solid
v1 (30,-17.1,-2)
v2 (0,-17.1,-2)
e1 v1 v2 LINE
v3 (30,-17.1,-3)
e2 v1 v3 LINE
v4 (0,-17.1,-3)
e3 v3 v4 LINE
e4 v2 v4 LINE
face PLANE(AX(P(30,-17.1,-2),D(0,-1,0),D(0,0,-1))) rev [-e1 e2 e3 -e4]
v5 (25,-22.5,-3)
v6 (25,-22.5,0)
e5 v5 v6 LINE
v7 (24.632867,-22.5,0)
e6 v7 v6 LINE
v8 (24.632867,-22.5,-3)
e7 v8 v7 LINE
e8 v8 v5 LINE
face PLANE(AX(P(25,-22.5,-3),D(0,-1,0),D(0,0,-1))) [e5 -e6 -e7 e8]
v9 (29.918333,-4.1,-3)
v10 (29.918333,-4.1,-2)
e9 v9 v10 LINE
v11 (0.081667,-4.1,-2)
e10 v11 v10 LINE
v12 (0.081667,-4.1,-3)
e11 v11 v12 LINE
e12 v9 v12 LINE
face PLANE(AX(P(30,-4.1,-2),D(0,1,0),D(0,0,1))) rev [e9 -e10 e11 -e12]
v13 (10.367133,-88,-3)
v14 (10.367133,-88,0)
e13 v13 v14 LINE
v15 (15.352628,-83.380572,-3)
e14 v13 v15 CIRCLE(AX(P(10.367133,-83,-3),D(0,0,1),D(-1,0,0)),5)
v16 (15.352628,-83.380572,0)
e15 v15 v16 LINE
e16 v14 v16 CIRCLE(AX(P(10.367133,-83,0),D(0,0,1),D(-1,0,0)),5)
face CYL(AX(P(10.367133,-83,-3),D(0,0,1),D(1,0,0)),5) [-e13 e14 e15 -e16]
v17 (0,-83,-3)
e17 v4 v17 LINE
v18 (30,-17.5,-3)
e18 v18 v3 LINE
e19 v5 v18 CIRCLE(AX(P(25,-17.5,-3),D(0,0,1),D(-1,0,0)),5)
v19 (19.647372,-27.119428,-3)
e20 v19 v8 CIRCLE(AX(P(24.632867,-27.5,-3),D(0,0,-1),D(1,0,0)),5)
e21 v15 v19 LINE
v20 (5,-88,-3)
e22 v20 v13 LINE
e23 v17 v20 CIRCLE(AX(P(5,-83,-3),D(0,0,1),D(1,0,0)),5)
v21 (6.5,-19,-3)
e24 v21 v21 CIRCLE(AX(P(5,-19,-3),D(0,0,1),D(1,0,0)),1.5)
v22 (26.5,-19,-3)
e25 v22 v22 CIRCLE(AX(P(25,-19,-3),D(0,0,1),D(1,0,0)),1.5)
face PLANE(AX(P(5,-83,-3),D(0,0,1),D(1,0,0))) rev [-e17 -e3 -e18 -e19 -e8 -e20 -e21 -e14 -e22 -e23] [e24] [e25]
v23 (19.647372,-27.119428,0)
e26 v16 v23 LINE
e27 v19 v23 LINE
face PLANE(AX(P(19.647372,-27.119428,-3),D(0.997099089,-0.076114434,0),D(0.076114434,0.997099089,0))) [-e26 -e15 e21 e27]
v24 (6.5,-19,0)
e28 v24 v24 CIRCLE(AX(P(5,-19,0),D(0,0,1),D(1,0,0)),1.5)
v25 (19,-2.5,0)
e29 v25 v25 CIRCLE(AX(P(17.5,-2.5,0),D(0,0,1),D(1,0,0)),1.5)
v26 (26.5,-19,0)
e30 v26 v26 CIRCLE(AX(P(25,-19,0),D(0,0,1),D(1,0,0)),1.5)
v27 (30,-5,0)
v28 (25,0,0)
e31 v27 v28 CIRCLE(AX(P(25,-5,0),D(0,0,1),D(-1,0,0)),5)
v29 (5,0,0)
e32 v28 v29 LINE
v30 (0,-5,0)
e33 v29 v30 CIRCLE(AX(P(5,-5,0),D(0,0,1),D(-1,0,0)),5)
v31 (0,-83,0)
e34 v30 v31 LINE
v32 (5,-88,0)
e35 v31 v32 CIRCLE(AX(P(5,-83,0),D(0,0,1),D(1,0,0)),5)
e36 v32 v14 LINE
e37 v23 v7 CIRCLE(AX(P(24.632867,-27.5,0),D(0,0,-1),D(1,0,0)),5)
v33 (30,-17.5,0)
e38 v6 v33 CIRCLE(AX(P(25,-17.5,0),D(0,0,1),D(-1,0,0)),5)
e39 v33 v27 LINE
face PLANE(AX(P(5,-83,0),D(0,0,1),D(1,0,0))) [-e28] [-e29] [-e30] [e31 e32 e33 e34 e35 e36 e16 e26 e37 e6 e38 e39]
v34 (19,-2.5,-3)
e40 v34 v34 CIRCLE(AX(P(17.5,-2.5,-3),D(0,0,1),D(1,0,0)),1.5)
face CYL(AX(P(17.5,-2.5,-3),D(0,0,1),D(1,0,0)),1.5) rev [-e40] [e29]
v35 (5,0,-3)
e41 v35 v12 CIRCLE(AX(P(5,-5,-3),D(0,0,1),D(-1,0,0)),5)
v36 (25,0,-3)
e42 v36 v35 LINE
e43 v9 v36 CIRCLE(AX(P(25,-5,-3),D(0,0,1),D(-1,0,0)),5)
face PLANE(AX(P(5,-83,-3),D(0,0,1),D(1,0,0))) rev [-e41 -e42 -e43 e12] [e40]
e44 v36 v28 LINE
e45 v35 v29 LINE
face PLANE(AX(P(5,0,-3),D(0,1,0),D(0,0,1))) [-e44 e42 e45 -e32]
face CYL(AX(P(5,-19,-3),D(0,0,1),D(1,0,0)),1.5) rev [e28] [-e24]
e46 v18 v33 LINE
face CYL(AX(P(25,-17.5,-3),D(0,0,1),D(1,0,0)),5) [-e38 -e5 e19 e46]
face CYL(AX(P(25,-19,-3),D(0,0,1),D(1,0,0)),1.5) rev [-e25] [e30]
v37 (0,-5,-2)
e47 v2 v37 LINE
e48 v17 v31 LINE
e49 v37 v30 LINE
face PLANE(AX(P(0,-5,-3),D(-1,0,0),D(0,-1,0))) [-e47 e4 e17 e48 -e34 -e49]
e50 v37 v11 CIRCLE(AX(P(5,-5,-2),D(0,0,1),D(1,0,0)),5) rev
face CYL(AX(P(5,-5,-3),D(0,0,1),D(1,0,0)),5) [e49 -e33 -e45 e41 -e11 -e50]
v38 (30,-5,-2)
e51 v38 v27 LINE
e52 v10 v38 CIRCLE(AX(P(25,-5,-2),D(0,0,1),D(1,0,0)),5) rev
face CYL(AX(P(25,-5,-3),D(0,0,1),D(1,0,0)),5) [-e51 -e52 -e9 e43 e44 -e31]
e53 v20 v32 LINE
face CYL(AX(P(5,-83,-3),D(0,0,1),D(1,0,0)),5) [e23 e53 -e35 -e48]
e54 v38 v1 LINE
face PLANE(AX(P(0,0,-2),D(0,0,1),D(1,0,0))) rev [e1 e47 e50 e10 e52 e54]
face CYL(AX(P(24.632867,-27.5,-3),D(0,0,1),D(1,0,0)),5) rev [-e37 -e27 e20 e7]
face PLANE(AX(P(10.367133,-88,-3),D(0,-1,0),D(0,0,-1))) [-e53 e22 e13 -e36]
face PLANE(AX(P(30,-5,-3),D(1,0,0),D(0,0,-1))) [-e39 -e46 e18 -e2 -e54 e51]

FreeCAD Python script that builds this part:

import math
import FreeCAD as App
import Part
import Sketcher
Q = App.Units.Quantity


def add_polygon(sketch, points):
    """Adds a closed chain of lines whose ends are joined by coincident constraints."""
    first, n = sketch.GeometryCount, len(points)
    for a, b in zip(points, points[1:] + points[:1]):
        sketch.addGeometry(Part.LineSegment(App.Vector(*a, 0), App.Vector(*b, 0)), False)
    for i in range(n):
        sketch.addConstraint(Sketcher.Constraint("Coincident", first + i, 2, first + (i + 1) % n, 1))

doc = App.newDocument("Part")
params = doc.addObject("Spreadsheet::Sheet", "Params")
for row, (alias, value) in enumerate([
    ("sketch1_diameter", "3 mm"),
    ("sketch1_radius", "5 mm"),
    ("sketch1_width", "20 mm"),
    ("sketch1_height", "78 mm"),
    ("sketch1_height2", "12.5 mm"),
    ("pad1_length", "3 mm"),
    ("sketch2_width", "30 mm"),
    ("sketch2_height", "13 mm"),
    ("pocket1_length", "1 mm"),
], start=1):
    params.set(f"A{row}", alias)
    params.set(f"B{row}", "=" + value)
    params.setAlias(f"B{row}", alias)

body = doc.addObject("PartDesign::Body", "Body")

# Sketch on XY plane
sketch1 = body.newObject("Sketcher::SketchObject", "Sketch")
sketch1.AttachmentSupport = (doc.getObject("XY_Plane"), [""])
sketch1.MapMode = "FlatFace"
sketch1.addGeometry(Part.LineSegment(App.Vector(0, -5, 0), App.Vector(0, -83, 0)), False)
sketch1.addGeometry(Part.ArcOfCircle(Part.Circle(App.Vector(5, -83, 0), App.Vector(0, 0, 1), 5), math.radians(180), math.radians(270)), False)
sketch1.addGeometry(Part.LineSegment(App.Vector(5, -88, 0), App.Vector(10.37, -88, 0)), False)
sketch1.addGeometry(Part.ArcOfCircle(Part.Circle(App.Vector(10.37, -83, 0), App.Vector(0, 0, 1), 5), math.radians(-90), math.radians(-4)), False)
sketch1.addGeometry(Part.LineSegment(App.Vector(15.35, -83.38, 0), App.Vector(19.65, -27.12, 0)), False)
sketch1.addGeometry(Part.ArcOfCircle(Part.Circle(App.Vector(24.63, -27.5, 0), App.Vector(0, 0, 1), 5), math.radians(90), math.radians(176)), False)
sketch1.addGeometry(Part.LineSegment(App.Vector(24.63, -22.5, 0), App.Vector(25, -22.5, 0)), False)
sketch1.addGeometry(Part.ArcOfCircle(Part.Circle(App.Vector(25, -17.5, 0), App.Vector(0, 0, 1), 5), math.radians(-90), math.radians(0)), False)
sketch1.addGeometry(Part.LineSegment(App.Vector(30, -17.5, 0), App.Vector(30, -5, 0)), False)
sketch1.addGeometry(Part.ArcOfCircle(Part.Circle(App.Vector(25, -5, 0), App.Vector(0, 0, 1), 5), math.radians(0), math.radians(90)), False)
sketch1.addGeometry(Part.LineSegment(App.Vector(25, 0, 0), App.Vector(5, 0, 0)), False)
sketch1.addGeometry(Part.ArcOfCircle(Part.Circle(App.Vector(5, -5, 0), App.Vector(0, 0, 1), 5), math.radians(90), math.radians(180)), False)
sketch1.addGeometry(Part.Circle(App.Vector(5, -19, 0), App.Vector(0, 0, 1), 1.5), False)
sketch1.addGeometry(Part.Circle(App.Vector(25, -19, 0), App.Vector(0, 0, 1), 1.5), False)
sketch1.addGeometry(Part.Circle(App.Vector(17.5, -2.5, 0), App.Vector(0, 0, 1), 1.5), False)
sketch1.addConstraint(Sketcher.Constraint("Tangent", 0, 2, 1, 1))
sketch1.addConstraint(Sketcher.Constraint("Tangent", 1, 2, 2, 1))
sketch1.addConstraint(Sketcher.Constraint("Tangent", 2, 2, 3, 1))
sketch1.addConstraint(Sketcher.Constraint("Tangent", 3, 2, 4, 1))
sketch1.addConstraint(Sketcher.Constraint("Tangent", 4, 2, 5, 2))
sketch1.addConstraint(Sketcher.Constraint("Tangent", 5, 1, 6, 1))
sketch1.addConstraint(Sketcher.Constraint("Tangent", 6, 2, 7, 1))
sketch1.addConstraint(Sketcher.Constraint("Tangent", 7, 2, 8, 1))
sketch1.addConstraint(Sketcher.Constraint("Tangent", 8, 2, 9, 1))
sketch1.addConstraint(Sketcher.Constraint("Tangent", 9, 2, 10, 1))
sketch1.addConstraint(Sketcher.Constraint("Tangent", 10, 2, 11, 1))
sketch1.addConstraint(Sketcher.Constraint("Tangent", 11, 2, 0, 1))
sketch1.addConstraint(Sketcher.Constraint("Vertical", 0))
sketch1.addConstraint(Sketcher.Constraint("Horizontal", 2))
sketch1.addConstraint(Sketcher.Constraint("Horizontal", 6))
sketch1.addConstraint(Sketcher.Constraint("Vertical", 8))
sketch1.addConstraint(Sketcher.Constraint("Horizontal", 10))
sketch1.addConstraint(Sketcher.Constraint("Equal", 1, 3))
sketch1.addConstraint(Sketcher.Constraint("Equal", 3, 5))
sketch1.addConstraint(Sketcher.Constraint("Equal", 5, 7))
sketch1.addConstraint(Sketcher.Constraint("Equal", 7, 9))
sketch1.addConstraint(Sketcher.Constraint("Equal", 9, 11))
sketch1.addConstraint(Sketcher.Constraint("Equal", 12, 13))
sketch1.addConstraint(Sketcher.Constraint("Equal", 13, 14))
sketch1.addConstraint(Sketcher.Constraint("PointOnObject", 0, 2, -2))
sketch1.addConstraint(Sketcher.Constraint("PointOnObject", 9, 2, -1))
sketch1.addConstraint(Sketcher.Constraint("Horizontal", 12, 3, 13, 3))
sketch1.addConstraint(Sketcher.Constraint("Vertical", 11, 3, 12, 3))
sketch1.addConstraint(Sketcher.Constraint("Vertical", 9, 3, 13, 3))
sketch1.addConstraint(Sketcher.Constraint("Diameter", 12, Q("3 mm")))
sketch1.addConstraint(Sketcher.Constraint("Radius", 1, Q("5 mm")))
sketch1.addConstraint(Sketcher.Constraint("DistanceX", 10, 2, 10, 1, Q("20 mm")))
sketch1.addConstraint(Sketcher.Constraint("DistanceY", 0, 2, 0, 1, Q("78 mm")))
sketch1.addConstraint(Sketcher.Constraint("DistanceY", 8, 1, 8, 2, Q("12.5 mm")))
sketch1.addConstraint(Sketcher.Constraint("DistanceY", 12, 3, -1, 1, Q("19 mm")))
sketch1.addConstraint(Sketcher.Constraint("DistanceY", 7, 3, 14, 3, Q("15 mm")))
sketch1.addConstraint(Sketcher.Constraint("DistanceX", -1, 1, 14, 3, Q("17.5 mm")))
sketch1.addConstraint(Sketcher.Constraint("DistanceX", 2, 1, 2, 2, Q("5.367133 mm")))
sketch1.addConstraint(Sketcher.Constraint("DistanceX", 6, 1, 6, 2, Q("0.367133 mm")))
sketch1.setExpression("Constraints[29]", "Params.sketch1_diameter")
sketch1.setExpression("Constraints[30]", "Params.sketch1_radius")
sketch1.setExpression("Constraints[31]", "Params.sketch1_width")
sketch1.setExpression("Constraints[32]", "Params.sketch1_height")
sketch1.setExpression("Constraints[33]", "Params.sketch1_height2")
pad1 = body.newObject("PartDesign::Pad", "Pad")
pad1.Profile = sketch1
pad1.setExpression("Length", "Params.pad1_length")
pad1.Reversed = True

# Sketch on XY plane
sketch2 = body.newObject("Sketcher::SketchObject", "Sketch001")
sketch2.AttachmentSupport = (doc.getObject("XY_Plane"), [""])
sketch2.MapMode = "FlatFace"
sketch2.AttachmentOffset = App.Placement(App.Vector(0, 0, -3), App.Rotation())
add_polygon(sketch2, [(30, -4), (30, -17), (0, -17), (0, -4)])  # lines 0-3
sketch2.addConstraint(Sketcher.Constraint("Vertical", 0))
sketch2.addConstraint(Sketcher.Constraint("Horizontal", 1))
sketch2.addConstraint(Sketcher.Constraint("Vertical", 2))
sketch2.addConstraint(Sketcher.Constraint("Horizontal", 3))
sketch2.addConstraint(Sketcher.Constraint("PointOnObject", 1, 2, -2))
sketch2.addConstraint(Sketcher.Constraint("DistanceX", 1, 2, 1, 1, Q("30 mm")))
sketch2.addConstraint(Sketcher.Constraint("DistanceY", 0, 2, 0, 1, Q("13 mm")))
sketch2.addConstraint(Sketcher.Constraint("DistanceY", 0, 2, -1, 1, Q("17.1 mm")))
sketch2.setExpression("Constraints[9]", "Params.sketch2_width")
sketch2.setExpression("Constraints[10]", "Params.sketch2_height")
pocket1 = body.newObject("PartDesign::Pocket", "Pocket")
pocket1.Profile = sketch2
pocket1.setExpression("Length", "Params.pocket1_length")
pocket1.Reversed = True

doc.recompute()
